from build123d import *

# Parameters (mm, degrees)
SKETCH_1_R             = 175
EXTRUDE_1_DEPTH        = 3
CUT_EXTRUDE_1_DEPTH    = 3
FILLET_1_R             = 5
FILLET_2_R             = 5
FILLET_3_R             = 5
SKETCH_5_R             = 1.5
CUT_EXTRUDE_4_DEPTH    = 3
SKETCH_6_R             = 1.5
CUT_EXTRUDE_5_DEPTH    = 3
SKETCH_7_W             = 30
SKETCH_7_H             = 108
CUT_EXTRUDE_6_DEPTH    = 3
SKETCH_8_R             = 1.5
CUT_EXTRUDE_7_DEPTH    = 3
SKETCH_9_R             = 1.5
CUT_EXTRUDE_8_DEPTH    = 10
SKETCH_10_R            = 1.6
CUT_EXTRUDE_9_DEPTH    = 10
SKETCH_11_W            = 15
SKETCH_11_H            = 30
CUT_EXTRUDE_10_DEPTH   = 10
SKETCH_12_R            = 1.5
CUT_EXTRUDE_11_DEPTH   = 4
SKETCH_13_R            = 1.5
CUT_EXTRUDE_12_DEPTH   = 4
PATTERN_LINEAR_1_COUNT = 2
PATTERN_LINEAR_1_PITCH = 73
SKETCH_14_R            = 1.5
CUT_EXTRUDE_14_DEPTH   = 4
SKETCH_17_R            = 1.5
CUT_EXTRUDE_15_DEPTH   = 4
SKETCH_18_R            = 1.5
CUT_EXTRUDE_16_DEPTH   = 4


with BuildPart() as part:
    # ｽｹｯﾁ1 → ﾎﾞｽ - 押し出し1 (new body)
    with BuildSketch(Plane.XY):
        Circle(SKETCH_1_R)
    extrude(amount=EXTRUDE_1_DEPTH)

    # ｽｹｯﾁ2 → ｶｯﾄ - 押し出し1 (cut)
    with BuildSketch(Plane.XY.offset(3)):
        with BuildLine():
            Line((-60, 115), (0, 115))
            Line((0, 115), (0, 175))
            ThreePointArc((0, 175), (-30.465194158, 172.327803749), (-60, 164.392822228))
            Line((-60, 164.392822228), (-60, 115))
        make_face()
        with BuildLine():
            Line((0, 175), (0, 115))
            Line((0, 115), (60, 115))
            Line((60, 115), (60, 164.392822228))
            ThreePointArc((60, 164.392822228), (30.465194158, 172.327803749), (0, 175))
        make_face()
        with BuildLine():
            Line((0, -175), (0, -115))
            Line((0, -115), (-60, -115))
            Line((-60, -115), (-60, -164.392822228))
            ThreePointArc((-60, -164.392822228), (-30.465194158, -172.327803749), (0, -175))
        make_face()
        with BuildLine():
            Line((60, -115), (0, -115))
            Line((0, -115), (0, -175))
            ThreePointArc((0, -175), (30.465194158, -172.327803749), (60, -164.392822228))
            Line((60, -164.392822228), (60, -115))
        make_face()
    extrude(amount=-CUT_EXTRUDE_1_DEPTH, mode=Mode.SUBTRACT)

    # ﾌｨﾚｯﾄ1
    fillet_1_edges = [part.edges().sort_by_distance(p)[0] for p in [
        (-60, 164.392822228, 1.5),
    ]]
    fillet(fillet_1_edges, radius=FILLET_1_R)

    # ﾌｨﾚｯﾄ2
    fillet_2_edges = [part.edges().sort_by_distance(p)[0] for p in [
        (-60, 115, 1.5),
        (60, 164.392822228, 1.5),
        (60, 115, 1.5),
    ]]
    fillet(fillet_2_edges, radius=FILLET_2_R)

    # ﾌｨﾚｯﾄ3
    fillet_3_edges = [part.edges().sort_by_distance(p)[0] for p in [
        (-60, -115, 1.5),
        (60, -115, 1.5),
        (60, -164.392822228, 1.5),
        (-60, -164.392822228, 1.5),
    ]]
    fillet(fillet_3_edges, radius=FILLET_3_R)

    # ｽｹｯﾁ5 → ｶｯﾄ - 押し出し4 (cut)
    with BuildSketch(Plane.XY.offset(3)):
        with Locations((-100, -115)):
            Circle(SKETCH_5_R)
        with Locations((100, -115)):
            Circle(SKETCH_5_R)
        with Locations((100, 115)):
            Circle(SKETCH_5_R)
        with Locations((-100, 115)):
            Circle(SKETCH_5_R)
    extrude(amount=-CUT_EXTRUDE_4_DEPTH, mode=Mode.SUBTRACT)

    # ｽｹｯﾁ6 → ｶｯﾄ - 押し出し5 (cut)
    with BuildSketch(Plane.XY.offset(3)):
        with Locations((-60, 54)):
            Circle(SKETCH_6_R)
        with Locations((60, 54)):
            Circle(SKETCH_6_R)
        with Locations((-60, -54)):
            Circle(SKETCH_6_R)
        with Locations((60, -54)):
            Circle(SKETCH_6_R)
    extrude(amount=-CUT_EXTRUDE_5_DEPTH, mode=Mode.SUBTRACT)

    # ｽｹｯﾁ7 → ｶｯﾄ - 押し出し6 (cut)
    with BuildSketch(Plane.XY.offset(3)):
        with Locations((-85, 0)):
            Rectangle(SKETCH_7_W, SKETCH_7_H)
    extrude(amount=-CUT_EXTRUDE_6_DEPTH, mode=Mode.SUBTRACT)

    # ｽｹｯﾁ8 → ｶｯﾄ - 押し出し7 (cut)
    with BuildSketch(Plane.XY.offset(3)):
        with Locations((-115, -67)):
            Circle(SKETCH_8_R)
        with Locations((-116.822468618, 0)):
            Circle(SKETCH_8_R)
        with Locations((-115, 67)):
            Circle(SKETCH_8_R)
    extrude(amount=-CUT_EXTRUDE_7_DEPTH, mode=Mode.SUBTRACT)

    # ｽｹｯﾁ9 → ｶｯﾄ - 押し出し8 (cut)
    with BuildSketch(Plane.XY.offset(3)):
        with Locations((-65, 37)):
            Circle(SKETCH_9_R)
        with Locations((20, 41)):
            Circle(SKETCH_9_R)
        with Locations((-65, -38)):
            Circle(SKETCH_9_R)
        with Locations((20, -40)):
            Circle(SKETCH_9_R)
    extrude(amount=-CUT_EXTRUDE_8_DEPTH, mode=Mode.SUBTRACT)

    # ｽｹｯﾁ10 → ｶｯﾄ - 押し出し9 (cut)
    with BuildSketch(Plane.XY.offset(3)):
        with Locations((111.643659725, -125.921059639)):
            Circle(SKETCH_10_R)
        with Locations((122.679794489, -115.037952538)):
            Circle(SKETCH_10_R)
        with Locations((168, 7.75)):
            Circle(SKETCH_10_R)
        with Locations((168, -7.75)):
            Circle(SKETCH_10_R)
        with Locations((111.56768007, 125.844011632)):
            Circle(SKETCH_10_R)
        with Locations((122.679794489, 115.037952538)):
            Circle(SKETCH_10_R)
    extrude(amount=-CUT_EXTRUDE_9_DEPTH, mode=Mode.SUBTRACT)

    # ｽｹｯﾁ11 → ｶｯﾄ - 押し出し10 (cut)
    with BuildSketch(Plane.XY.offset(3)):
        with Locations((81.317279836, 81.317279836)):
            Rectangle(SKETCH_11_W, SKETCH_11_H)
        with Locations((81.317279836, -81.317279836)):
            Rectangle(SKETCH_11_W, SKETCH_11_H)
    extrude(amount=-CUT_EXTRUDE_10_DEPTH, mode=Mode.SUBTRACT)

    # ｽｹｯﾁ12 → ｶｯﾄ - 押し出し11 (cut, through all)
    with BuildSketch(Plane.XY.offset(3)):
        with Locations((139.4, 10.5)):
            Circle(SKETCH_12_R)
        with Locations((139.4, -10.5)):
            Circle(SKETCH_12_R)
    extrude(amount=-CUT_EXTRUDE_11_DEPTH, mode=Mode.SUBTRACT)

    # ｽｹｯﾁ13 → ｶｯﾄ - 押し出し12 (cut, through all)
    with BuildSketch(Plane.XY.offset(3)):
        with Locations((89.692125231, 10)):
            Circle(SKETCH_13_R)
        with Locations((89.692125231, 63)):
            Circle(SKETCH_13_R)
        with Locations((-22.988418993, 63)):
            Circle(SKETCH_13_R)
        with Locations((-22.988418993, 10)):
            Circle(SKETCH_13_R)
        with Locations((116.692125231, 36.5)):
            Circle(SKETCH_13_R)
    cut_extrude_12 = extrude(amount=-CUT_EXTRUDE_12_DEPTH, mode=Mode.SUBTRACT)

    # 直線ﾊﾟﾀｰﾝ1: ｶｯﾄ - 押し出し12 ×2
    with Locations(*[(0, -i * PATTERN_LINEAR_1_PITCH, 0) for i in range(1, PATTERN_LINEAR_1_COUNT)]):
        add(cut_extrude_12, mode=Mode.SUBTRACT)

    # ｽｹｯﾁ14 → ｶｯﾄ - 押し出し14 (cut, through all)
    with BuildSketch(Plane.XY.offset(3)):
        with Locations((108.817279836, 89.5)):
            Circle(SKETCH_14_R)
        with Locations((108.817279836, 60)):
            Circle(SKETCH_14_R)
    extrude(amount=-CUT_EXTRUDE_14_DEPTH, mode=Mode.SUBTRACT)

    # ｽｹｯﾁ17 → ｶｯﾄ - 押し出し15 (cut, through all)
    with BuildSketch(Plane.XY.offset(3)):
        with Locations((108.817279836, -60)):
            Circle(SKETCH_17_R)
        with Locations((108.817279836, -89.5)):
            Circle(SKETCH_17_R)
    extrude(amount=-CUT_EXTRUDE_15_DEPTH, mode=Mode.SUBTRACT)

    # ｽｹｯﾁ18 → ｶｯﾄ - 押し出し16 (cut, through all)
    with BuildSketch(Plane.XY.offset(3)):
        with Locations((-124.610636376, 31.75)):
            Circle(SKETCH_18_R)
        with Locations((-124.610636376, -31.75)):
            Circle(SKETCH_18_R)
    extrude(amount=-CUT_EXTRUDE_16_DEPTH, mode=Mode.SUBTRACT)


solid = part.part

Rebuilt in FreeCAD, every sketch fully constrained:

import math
import FreeCAD as App
import Part
import Sketcher


def edges_at(feature, points):
    """Names of the edges that pass closest to the given points."""
    edges = feature.Shape.Edges
    near = lambda p: min(range(len(edges)), key=lambda i: edges[i].distToShape(Part.Vertex(*p))[0])
    return sorted({f"Edge{near(p) + 1}" for p in points})


def add_polygon(sketch, points):
    """Adds a closed chain of lines whose ends are joined by coincident constraints."""
    first, n = sketch.GeometryCount, len(points)
    for a, b in zip(points, points[1:] + points[:1]):
        sketch.addGeometry(Part.LineSegment(App.Vector(*a, 0), App.Vector(*b, 0)), False)
    for i in range(n):
        sketch.addConstraint(Sketcher.Constraint("Coincident", first + i, 2, first + (i + 1) % n, 1))

doc = App.newDocument("Part")
body = doc.addObject("PartDesign::Body", "Body")

sketch1 = body.newObject("Sketcher::SketchObject", "Sketch")
sketch1.AttachmentSupport = (doc.getObject("XY_Plane"), [""])
sketch1.MapMode = "FlatFace"
sketch1.addGeometry(Part.Circle(App.Vector(0, 0, 0), App.Vector(0, 0, 1), 175), False)
sketch1.addConstraint([
    Sketcher.Constraint("Coincident", 0, 3, -1, 1),
    Sketcher.Constraint("Diameter", 0, 350.0),
])
pad1 = body.newObject("PartDesign::Pad", "Pad")
pad1.Profile = sketch1
pad1.Length = 3

sketch2 = body.newObject("Sketcher::SketchObject", "Sketch001")
sketch2.AttachmentSupport = (doc.getObject("XY_Plane"), [""])
sketch2.MapMode = "FlatFace"
sketch2.AttachmentOffset = App.Placement(App.Vector(0, 0, 3), App.Rotation())
sketch2.addGeometry([
    Part.LineSegment(App.Vector(-60, 115, 0), App.Vector(60, 115, 0)),
    Part.LineSegment(App.Vector(60, 115, 0), App.Vector(60, 164, 0)),
    Part.ArcOfCircle(Part.Circle(App.Vector(0, 0, 0), App.Vector(0, 0, 1), 175), math.radians(70), math.radians(90)),
    Part.ArcOfCircle(Part.Circle(App.Vector(0, 0, 0), App.Vector(0, 0, 1), 175), math.radians(90), math.radians(110)),
    Part.LineSegment(App.Vector(-60, 164, 0), App.Vector(-60, 115, 0)),
    Part.LineSegment(App.Vector(-60, -115, 0), App.Vector(-60, -164, 0)),
    Part.ArcOfCircle(Part.Circle(App.Vector(0, 0, 0), App.Vector(0, 0, 1), 175), math.radians(-110), math.radians(-90)),
    Part.ArcOfCircle(Part.Circle(App.Vector(0, 0, 0), App.Vector(0, 0, 1), 175), math.radians(-90), math.radians(-70)),
    Part.LineSegment(App.Vector(60, -164, 0), App.Vector(60, -115, 0)),
    Part.LineSegment(App.Vector(60, -115, 0), App.Vector(-60, -115, 0)),
], False)
sketch2.addConstraint([
    Sketcher.Constraint("Coincident", 0, 2, 1, 1),
    Sketcher.Constraint("Coincident", 1, 2, 2, 1),
    Sketcher.Constraint("Tangent", 2, 2, 3, 1),
    Sketcher.Constraint("Coincident", 3, 2, 4, 1),
    Sketcher.Constraint("Coincident", 4, 2, 0, 1),
    Sketcher.Constraint("Coincident", 5, 2, 6, 1),
    Sketcher.Constraint("Tangent", 6, 2, 7, 1),
    Sketcher.Constraint("Coincident", 7, 2, 8, 1),
    Sketcher.Constraint("Coincident", 8, 2, 9, 1),
    Sketcher.Constraint("Coincident", 9, 2, 5, 1),
    Sketcher.Constraint("Horizontal", 0),
    Sketcher.Constraint("Vertical", 1),
    Sketcher.Constraint("Vertical", 4),
    Sketcher.Constraint("Vertical", 5),
    Sketcher.Constraint("Vertical", 8),
    Sketcher.Constraint("Horizontal", 9),
    Sketcher.Constraint("Coincident", 2, 3, -1, 1),
    Sketcher.Constraint("Coincident", 6, 3, -1, 1),
    Sketcher.Constraint("Equal", 2, 3),
    Sketcher.Constraint("Equal", 3, 6),
    Sketcher.Constraint("Equal", 6, 7),
    Sketcher.Constraint("Symmetric", 4, 2, 8, 2, -1, 1),
    Sketcher.Constraint("PointOnObject", 2, 2, -2),
    Sketcher.Constraint("PointOnObject", 6, 2, -2),
    Sketcher.Constraint("Horizontal", 1, 2, 3, 2),
    Sketcher.Constraint("Horizontal", 5, 2, 7, 2),
    Sketcher.Constraint("Radius", 2, 175.0),
    Sketcher.Constraint("DistanceX", 0, 1, 0, 2, 120.0),
    Sketcher.Constraint("DistanceY", -1, 1, 0, 2, 115.0),
])
pocket1 = body.newObject("PartDesign::Pocket", "Pocket")
pocket1.Profile = sketch2
pocket1.Length = 3
doc.recompute()

fillet = body.newObject("PartDesign::Fillet", "Fillet")
fillet.Base = (pocket1, edges_at(pocket1, [(-60, 164.393, 1.5)]))
fillet.Radius = 5
doc.recompute()

fillet2 = body.newObject("PartDesign::Fillet", "Fillet001")
fillet2.Base = (fillet, edges_at(fillet, [(-60, 115, 1.5), (60, 164.393, 1.5), (60, 115, 1.5)]))
fillet2.Radius = 5
doc.recompute()

fillet3 = body.newObject("PartDesign::Fillet", "Fillet002")
fillet3.Base = (fillet2, edges_at(fillet2, [
    (-60, -115, 1.5),
    (60, -115, 1.5),
    (60, -164.393, 1.5),
    (-60, -164.393, 1.5),
]))
fillet3.Radius = 5

sketch3 = body.newObject("Sketcher::SketchObject", "Sketch002")
sketch3.AttachmentSupport = (doc.getObject("XY_Plane"), [""])
sketch3.MapMode = "FlatFace"
sketch3.AttachmentOffset = App.Placement(App.Vector(0, 0, 3), App.Rotation())
sketch3.addGeometry([
    Part.Circle(App.Vector(-100, -115, 0), App.Vector(0, 0, 1), 1.5),
    Part.Circle(App.Vector(100, -115, 0), App.Vector(0, 0, 1), 1.5),
    Part.Circle(App.Vector(100, 115, 0), App.Vector(0, 0, 1), 1.5),
    Part.Circle(App.Vector(-100, 115, 0), App.Vector(0, 0, 1), 1.5),
], False)
sketch3.addConstraint([
    Sketcher.Constraint("Equal", 0, 1),
    Sketcher.Constraint("Equal", 1, 2),
    Sketcher.Constraint("Equal", 2, 3),
    Sketcher.Constraint("Symmetric", 0, 3, 2, 3, -1, 1),
    Sketcher.Constraint("Symmetric", 1, 3, 3, 3, -1, 1),
    Sketcher.Constraint("Symmetric", 0, 3, 1, 3, -2),
    Sketcher.Constraint("Diameter", 0, 3.0),
    Sketcher.Constraint("DistanceX", 0, 3, -1, 1, 100.0),
    Sketcher.Constraint("DistanceY", 0, 3, -1, 1, 115.0),
])
pocket2 = body.newObject("PartDesign::Pocket", "Pocket001")
pocket2.Profile = sketch3
pocket2.Length = 3

sketch4 = body.newObject("Sketcher::SketchObject", "Sketch003")
sketch4.AttachmentSupport = (doc.getObject("XY_Plane"), [""])
sketch4.MapMode = "FlatFace"
sketch4.AttachmentOffset = App.Placement(App.Vector(0, 0, 3), App.Rotation())
sketch4.addGeometry([
    Part.Circle(App.Vector(-60, 54, 0), App.Vector(0, 0, 1), 1.5),
    Part.Circle(App.Vector(60, 54, 0), App.Vector(0, 0, 1), 1.5),
    Part.Circle(App.Vector(-60, -54, 0), App.Vector(0, 0, 1), 1.5),
    Part.Circle(App.Vector(60, -54, 0), App.Vector(0, 0, 1), 1.5),
], False)
sketch4.addConstraint([
    Sketcher.Constraint("Equal", 0, 1),
    Sketcher.Constraint("Equal", 1, 2),
    Sketcher.Constraint("Equal", 2, 3),
    Sketcher.Constraint("Symmetric", 1, 3, 2, 3, -1, 1),
    Sketcher.Constraint("Symmetric", 0, 3, 3, 3, -1, 1),
    Sketcher.Constraint("Symmetric", 0, 3, 1, 3, -2),
    Sketcher.Constraint("Diameter", 0, 3.0),
    Sketcher.Constraint("DistanceX", 0, 3, -1, 1, 60.0),
    Sketcher.Constraint("DistanceY", -1, 1, 0, 3, 54.0),
])
pocket3 = body.newObject("PartDesign::Pocket", "Pocket002")
pocket3.Profile = sketch4
pocket3.Length = 3

sketch5 = body.newObject("Sketcher::SketchObject", "Sketch004")
sketch5.AttachmentSupport = (doc.getObject("XY_Plane"), [""])
sketch5.MapMode = "FlatFace"
sketch5.AttachmentOffset = App.Placement(App.Vector(0, 0, 3), App.Rotation())
add_polygon(sketch5, [(-100, 54), (-100, -54), (-70, -54), (-70, 54)])
sketch5.addConstraint([
    Sketcher.Constraint("Vertical", 0),
    Sketcher.Constraint("Horizontal", 1),
    Sketcher.Constraint("Vertical", 2),
    Sketcher.Constraint("Horizontal", 3),
    Sketcher.Constraint("DistanceX", 1, 1, 1, 2, 30.0),
    Sketcher.Constraint("DistanceY", 0, 2, 0, 1, 108.0),
    Sketcher.Constraint("DistanceX", 0, 2, -1, 1, 100.0),
    Sketcher.Constraint("DistanceY", 0, 2, -1, 1, 54.0),
])
pocket4 = body.newObject("PartDesign::Pocket", "Pocket003")
pocket4.Profile = sketch5
pocket4.Length = 3

sketch6 = body.newObject("Sketcher::SketchObject", "Sketch005")
sketch6.AttachmentSupport = (doc.getObject("XY_Plane"), [""])
sketch6.MapMode = "FlatFace"
sketch6.AttachmentOffset = App.Placement(App.Vector(0, 0, 3), App.Rotation())
sketch6.addGeometry([
    Part.Circle(App.Vector(-115, -67, 0), App.Vector(0, 0, 1), 1.5),
    Part.Circle(App.Vector(-116.8, 0, 0), App.Vector(0, 0, 1), 1.5),
    Part.Circle(App.Vector(-115, 67, 0), App.Vector(0, 0, 1), 1.5),
], False)
sketch6.addConstraint([
    Sketcher.Constraint("Equal", 0, 1),
    Sketcher.Constraint("Equal", 1, 2),
    Sketcher.Constraint("Symmetric", 0, 3, 2, 3, -1),
    Sketcher.Constraint("PointOnObject", 1, 3, -1),
    Sketcher.Constraint("Diameter", 0, 3.0),
    Sketcher.Constraint("DistanceX", 0, 3, -1, 1, 115.0),
    Sketcher.Constraint("DistanceY", 0, 3, -1, 1, 67.0),
    Sketcher.Constraint("DistanceX", 1, 3, -1, 1, 116.822469),
])
pocket5 = body.newObject("PartDesign::Pocket", "Pocket004")
pocket5.Profile = sketch6
pocket5.Length = 3

sketch7 = body.newObject("Sketcher::SketchObject", "Sketch006")
sketch7.AttachmentSupport = (doc.getObject("XY_Plane"), [""])
sketch7.MapMode = "FlatFace"
sketch7.AttachmentOffset = App.Placement(App.Vector(0, 0, 3), App.Rotation())
sketch7.addGeometry([
    Part.Circle(App.Vector(-65, 37, 0), App.Vector(0, 0, 1), 1.5),
    Part.Circle(App.Vector(20, 41, 0), App.Vector(0, 0, 1), 1.5),
    Part.Circle(App.Vector(-65, -38, 0), App.Vector(0, 0, 1), 1.5),
    Part.Circle(App.Vector(20, -40, 0), App.Vector(0, 0, 1), 1.5),
], False)
sketch7.addConstraint([
    Sketcher.Constraint("Equal", 0, 1),
    Sketcher.Constraint("Equal", 1, 2),
    Sketcher.Constraint("Equal", 2, 3),
    Sketcher.Constraint("Vertical", 0, 3, 2, 3),
    Sketcher.Constraint("Vertical", 1, 3, 3, 3),
    Sketcher.Constraint("Diameter", 0, 3.0),
    Sketcher.Constraint("DistanceX", 0, 3, -1, 1, 65.0),
    Sketcher.Constraint("DistanceY", -1, 1, 0, 3, 37.0),
    Sketcher.Constraint("DistanceX", -1, 1, 1, 3, 20.0),
    Sketcher.Constraint("DistanceY", -1, 1, 1, 3, 41.0),
    Sketcher.Constraint("DistanceY", 2, 3, -1, 1, 38.0),
    Sketcher.Constraint("DistanceY", 3, 3, -1, 1, 40.0),
])
pocket6 = body.newObject("PartDesign::Pocket", "Pocket005")
pocket6.Profile = sketch7
pocket6.Length = 10

sketch8 = body.newObject("Sketcher::SketchObject", "Sketch007")
sketch8.AttachmentSupport = (doc.getObject("XY_Plane"), [""])
sketch8.MapMode = "FlatFace"
sketch8.AttachmentOffset = App.Placement(App.Vector(0, 0, 3), App.Rotation())
sketch8.addGeometry([
    Part.Circle(App.Vector(111.6, -125.9, 0), App.Vector(0, 0, 1), 1.6),
    Part.Circle(App.Vector(122.7, -115, 0), App.Vector(0, 0, 1), 1.6),
    Part.Circle(App.Vector(168, 7.8, 0), App.Vector(0, 0, 1), 1.6),
    Part.Circle(App.Vector(168, -7.8, 0), App.Vector(0, 0, 1), 1.6),
    Part.Circle(App.Vector(111.6, 125.8, 0), App.Vector(0, 0, 1), 1.6),
    Part.Circle(App.Vector(122.7, 115, 0), App.Vector(0, 0, 1), 1.6),
], False)
sketch8.addConstraint([
    Sketcher.Constraint("Equal", 0, 1),
    Sketcher.Constraint("Equal", 1, 2),
    Sketcher.Constraint("Equal", 2, 3),
    Sketcher.Constraint("Equal", 3, 4),
    Sketcher.Constraint("Equal", 4, 5),
    Sketcher.Constraint("Symmetric", 2, 3, 3, 3, -1),
    Sketcher.Constraint("Symmetric", 1, 3, 5, 3, -1),
    Sketcher.Constraint("Diameter", 0, 3.2),
    Sketcher.Constraint("DistanceX", -1, 1, 2, 3, 168.0),
    Sketcher.Constraint("DistanceY", 3, 3, 2, 3, 15.5),
    Sketcher.Constraint("DistanceX", -1, 1, 0, 3, 111.64366),
    Sketcher.Constraint("DistanceY", 0, 3, -1, 1, 125.92106),
    Sketcher.Constraint("DistanceX", -1, 1, 4, 3, 111.56768),
    Sketcher.Constraint("DistanceY", -1, 1, 4, 3, 125.844012),
    Sketcher.Constraint("DistanceY", 5, 3, 4, 3, 10.806059),
    Sketcher.Constraint("DistanceX", -1, 1, 1, 3, 122.679794),
])
pocket7 = body.newObject("PartDesign::Pocket", "Pocket006")
pocket7.Profile = sketch8
pocket7.Length = 10

sketch9 = body.newObject("Sketcher::SketchObject", "Sketch008")
sketch9.AttachmentSupport = (doc.getObject("XY_Plane"), [""])
sketch9.MapMode = "FlatFace"
sketch9.AttachmentOffset = App.Placement(App.Vector(0, 0, 3), App.Rotation())
add_polygon(sketch9, [(74, 96), (74, 66), (89, 66), (89, 96)])
add_polygon(sketch9, [(74, -66), (74, -96), (89, -96), (89, -66)])
sketch9.addConstraint([
    Sketcher.Constraint("Vertical", 0),
    Sketcher.Constraint("Horizontal", 1),
    Sketcher.Constraint("Vertical", 2),
    Sketcher.Constraint("Horizontal", 3),
    Sketcher.Constraint("Vertical", 4),
    Sketcher.Constraint("Horizontal", 5),
    Sketcher.Constraint("Vertical", 6),
    Sketcher.Constraint("Horizontal", 7),
    Sketcher.Constraint("Symmetric", 3, 2, 4, 2, -1),
    Sketcher.Constraint("Symmetric", 1, 2, 6, 2, -1),
    Sketcher.Constraint("DistanceX", 1, 1, 1, 2, 15.0),
    Sketcher.Constraint("DistanceY", 0, 2, 0, 1, 30.0),
    Sketcher.Constraint("DistanceX", -1, 1, 0, 2, 73.81728),
    Sketcher.Constraint("DistanceY", -1, 1, 0, 2, 66.31728),
])
pocket8 = body.newObject("PartDesign::Pocket", "Pocket007")
pocket8.Profile = sketch9
pocket8.Length = 10

sketch10 = body.newObject("Sketcher::SketchObject", "Sketch009")
sketch10.AttachmentSupport = (doc.getObject("XY_Plane"), [""])
sketch10.MapMode = "FlatFace"
sketch10.AttachmentOffset = App.Placement(App.Vector(0, 0, 3), App.Rotation())
sketch10.addGeometry([
    Part.Circle(App.Vector(139.4, 10.5, 0), App.Vector(0, 0, 1), 1.5),
    Part.Circle(App.Vector(139.4, -10.5, 0), App.Vector(0, 0, 1), 1.5),
], False)
sketch10.addConstraint([
    Sketcher.Constraint("Equal", 0, 1),
    Sketcher.Constraint("Symmetric", 0, 3, 1, 3, -1),
    Sketcher.Constraint("Diameter", 0, 3.0),
    Sketcher.Constraint("DistanceY", 1, 3, 0, 3, 21.0),
    Sketcher.Constraint("DistanceX", -1, 1, 0, 3, 139.4),
])
pocket9 = body.newObject("PartDesign::Pocket", "Pocket008")
pocket9.Profile = sketch10
pocket9.Type = "ThroughAll"

sketch11 = body.newObject("Sketcher::SketchObject", "Sketch010")
sketch11.AttachmentSupport = (doc.getObject("XY_Plane"), [""])
sketch11.MapMode = "FlatFace"
sketch11.AttachmentOffset = App.Placement(App.Vector(0, 0, 3), App.Rotation())
sketch11.addGeometry([
    Part.Circle(App.Vector(89.7, 10, 0), App.Vector(0, 0, 1), 1.5),
    Part.Circle(App.Vector(89.7, 63, 0), App.Vector(0, 0, 1), 1.5),
    Part.Circle(App.Vector(-23, 63, 0), App.Vector(0, 0, 1), 1.5),
    Part.Circle(App.Vector(-23, 10, 0), App.Vector(0, 0, 1), 1.5),
    Part.Circle(App.Vector(116.7, 36.5, 0), App.Vector(0, 0, 1), 1.5),
], False)
sketch11.addConstraint([
    Sketcher.Constraint("Equal", 0, 1),
    Sketcher.Constraint("Equal", 1, 2),
    Sketcher.Constraint("Equal", 2, 3),
    Sketcher.Constraint("Equal", 3, 4),
    Sketcher.Constraint("Horizontal", 1, 3, 2, 3),
    Sketcher.Constraint("Horizontal", 0, 3, 3, 3),
    Sketcher.Constraint("Vertical", 0, 3, 1, 3),
    Sketcher.Constraint("Vertical", 2, 3, 3, 3),
    Sketcher.Constraint("Diameter", 0, 3.0),
    Sketcher.Constraint("DistanceY", -1, 1, 0, 3, 10.0),
    Sketcher.Constraint("DistanceY", -1, 1, 1, 3, 63.0),
    Sketcher.Constraint("DistanceX", 0, 3, 4, 3, 27.0),
    Sketcher.Constraint("DistanceY", -1, 1, 4, 3, 36.5),
    Sketcher.Constraint("DistanceX", 2, 3, -1, 1, 22.988419),
    Sketcher.Constraint("DistanceX", -1, 1, 0, 3, 89.692125),
])
pocket10 = body.newObject("PartDesign::Pocket", "Pocket009")
pocket10.Profile = sketch11
pocket10.Type = "ThroughAll"
doc.recompute()

linearpattern = body.newObject("PartDesign::LinearPattern", "LinearPattern")
linearpattern.Originals = [pocket10]
linearpattern.Direction = (doc.getObject("Y_Axis"), [""])
linearpattern.Mode = "offset"
linearpattern.Offset = 73
linearpattern.Occurrences = 2
linearpattern.Reversed = True
body.Tip = linearpattern

sketch12 = body.newObject("Sketcher::SketchObject", "Sketch011")
sketch12.AttachmentSupport = (doc.getObject("XY_Plane"), [""])
sketch12.MapMode = "FlatFace"
sketch12.AttachmentOffset = App.Placement(App.Vector(0, 0, 3), App.Rotation())
sketch12.addGeometry([
    Part.Circle(App.Vector(108.8, 89.5, 0), App.Vector(0, 0, 1), 1.5),
    Part.Circle(App.Vector(108.8, 60, 0), App.Vector(0, 0, 1), 1.5),
], False)
sketch12.addConstraint([
    Sketcher.Constraint("Equal", 0, 1),
    Sketcher.Constraint("Vertical", 0, 3, 1, 3),
    Sketcher.Constraint("Diameter", 0, 3.0),
    Sketcher.Constraint("DistanceY", -1, 1, 1, 3, 60.0),
    Sketcher.Constraint("DistanceY", -1, 1, 0, 3, 89.5),
    Sketcher.Constraint("DistanceX", -1, 1, 0, 3, 108.81728),
])
pocket11 = body.newObject("PartDesign::Pocket", "Pocket010")
pocket11.Profile = sketch12
pocket11.Type = "ThroughAll"

sketch13 = body.newObject("Sketcher::SketchObject", "Sketch012")
sketch13.AttachmentSupport = (doc.getObject("XY_Plane"), [""])
sketch13.MapMode = "FlatFace"
sketch13.AttachmentOffset = App.Placement(App.Vector(0, 0, 3), App.Rotation())
sketch13.addGeometry([
    Part.Circle(App.Vector(108.8, -60, 0), App.Vector(0, 0, 1), 1.5),
    Part.Circle(App.Vector(108.8, -89.5, 0), App.Vector(0, 0, 1), 1.5),
], False)
sketch13.addConstraint([
    Sketcher.Constraint("Equal", 0, 1),
    Sketcher.Constraint("Vertical", 0, 3, 1, 3),
    Sketcher.Constraint("Diameter", 0, 3.0),
    Sketcher.Constraint("DistanceY", 0, 3, -1, 1, 60.0),
    Sketcher.Constraint("DistanceY", 1, 3, -1, 1, 89.5),
    Sketcher.Constraint("DistanceX", -1, 1, 0, 3, 108.81728),
])
pocket12 = body.newObject("PartDesign::Pocket", "Pocket011")
pocket12.Profile = sketch13
pocket12.Type = "ThroughAll"

sketch14 = body.newObject("Sketcher::SketchObject", "Sketch013")
sketch14.AttachmentSupport = (doc.getObject("XY_Plane"), [""])
sketch14.MapMode = "FlatFace"
sketch14.AttachmentOffset = App.Placement(App.Vector(0, 0, 3), App.Rotation())
sketch14.addGeometry([
    Part.Circle(App.Vector(-124.6, 31.8, 0), App.Vector(0, 0, 1), 1.5),
    Part.Circle(App.Vector(-124.6, -31.8, 0), App.Vector(0, 0, 1), 1.5),
], False)
sketch14.addConstraint([
    Sketcher.Constraint("Equal", 0, 1),
    Sketcher.Constraint("Symmetric", 0, 3, 1, 3, -1),
    Sketcher.Constraint("Diameter", 0, 3.0),
    Sketcher.Constraint("DistanceY", 1, 3, 0, 3, 63.5),
    Sketcher.Constraint("DistanceX", 0, 3, -1, 1, 124.610636),
])
pocket13 = body.newObject("PartDesign::Pocket", "Pocket012")
pocket13.Profile = sketch14
pocket13.Type = "ThroughAll"

doc.recompute()
